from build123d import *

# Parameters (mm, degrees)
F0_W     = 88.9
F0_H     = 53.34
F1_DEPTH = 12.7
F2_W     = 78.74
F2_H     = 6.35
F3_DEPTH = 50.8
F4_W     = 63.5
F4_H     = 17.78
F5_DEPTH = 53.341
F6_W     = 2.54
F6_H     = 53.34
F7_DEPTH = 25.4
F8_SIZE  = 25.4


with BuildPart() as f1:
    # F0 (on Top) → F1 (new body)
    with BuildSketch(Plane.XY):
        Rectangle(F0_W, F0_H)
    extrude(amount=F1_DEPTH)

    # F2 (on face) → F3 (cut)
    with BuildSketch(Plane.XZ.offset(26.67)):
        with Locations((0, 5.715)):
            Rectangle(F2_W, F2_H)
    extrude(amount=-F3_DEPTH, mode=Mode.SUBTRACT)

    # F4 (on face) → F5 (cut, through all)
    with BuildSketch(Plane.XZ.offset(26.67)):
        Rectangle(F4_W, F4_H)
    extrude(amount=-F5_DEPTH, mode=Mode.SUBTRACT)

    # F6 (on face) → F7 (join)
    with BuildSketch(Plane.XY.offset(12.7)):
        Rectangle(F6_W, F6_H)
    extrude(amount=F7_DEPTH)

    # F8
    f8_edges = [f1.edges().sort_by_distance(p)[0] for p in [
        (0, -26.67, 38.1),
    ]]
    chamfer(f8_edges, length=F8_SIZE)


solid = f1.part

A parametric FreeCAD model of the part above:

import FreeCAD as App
import Part
import Sketcher

V = App.Vector
Q = App.Units.Quantity


def edges_at(feature, points):
    """Names of the edges that pass closest to the given points."""
    edges = feature.Shape.Edges
    near = lambda p: min(range(len(edges)), key=lambda i: edges[i].distToShape(Part.Vertex(*p))[0])
    return sorted({f"Edge{near(p) + 1}" for p in points})


def add_polygon(sketch, points):
    """Adds a closed chain of lines whose ends are joined by coincident constraints."""
    first, n = sketch.GeometryCount, len(points)
    for a, b in zip(points, points[1:] + points[:1]):
        sketch.addGeometry(Part.LineSegment(App.Vector(*a, 0), App.Vector(*b, 0)), False)
    for i in range(n):
        sketch.addConstraint(Sketcher.Constraint("Coincident", first + i, 2, first + (i + 1) % n, 1))

doc = App.newDocument("Part")
body = doc.addObject("PartDesign::Body", "Body")

# Sketch on XY plane
sketch1 = body.newObject("Sketcher::SketchObject", "Sketch")
sketch1.AttachmentSupport = (doc.getObject("XY_Plane"), [""])
sketch1.MapMode = "FlatFace"
add_polygon(sketch1, [(-44, 27), (-44, -27), (44, -27), (44, 27)])  # lines 0-3
sketch1.addConstraint(Sketcher.Constraint("Vertical", 0))
sketch1.addConstraint(Sketcher.Constraint("Horizontal", 1))
sketch1.addConstraint(Sketcher.Constraint("Vertical", 2))
sketch1.addConstraint(Sketcher.Constraint("Horizontal", 3))
sketch1.addConstraint(Sketcher.Constraint("Symmetric", 0, 2, 2, 2, -1, 1))
sketch1.addConstraint(Sketcher.Constraint("DistanceX", 1, 1, 1, 2, Q("3.5 in")))
sketch1.addConstraint(Sketcher.Constraint("DistanceY", 0, 2, 0, 1, Q("2.1 in")))
pad1 = body.newObject("PartDesign::Pad", "Pad")
pad1.Profile = sketch1
pad1.Length = Q("0.5 in")

# Sketch on XZ plane
sketch2 = body.newObject("Sketcher::SketchObject", "Sketch001")
sketch2.AttachmentSupport = (doc.getObject("XZ_Plane"), [""])
sketch2.MapMode = "FlatFace"
sketch2.AttachmentOffset = App.Placement(V(0, 0, 1.05 * 25.4), App.Rotation())
add_polygon(sketch2, [(-39, 9), (-39, 3), (39, 3), (39, 9)])  # lines 0-3
sketch2.addConstraint(Sketcher.Constraint("Vertical", 0))
sketch2.addConstraint(Sketcher.Constraint("Horizontal", 1))
sketch2.addConstraint(Sketcher.Constraint("Vertical", 2))
sketch2.addConstraint(Sketcher.Constraint("Horizontal", 3))
sketch2.addConstraint(Sketcher.Constraint("DistanceX", 1, 1, 1, 2, Q("3.1 in")))
sketch2.addConstraint(Sketcher.Constraint("DistanceY", 0, 2, 0, 1, Q("0.25 in")))
sketch2.addConstraint(Sketcher.Constraint("DistanceY", -1, 1, 0, 2, Q("0.1 in")))
sketch2.addConstraint(Sketcher.Constraint("DistanceX", 0, 2, -1, 1, Q("1.55 in")))
pocket1 = body.newObject("PartDesign::Pocket", "Pocket")
pocket1.Profile = sketch2
pocket1.Length = Q("2 in")

# Sketch on XZ plane
sketch3 = body.newObject("Sketcher::SketchObject", "Sketch002")
sketch3.AttachmentSupport = (doc.getObject("XZ_Plane"), [""])
sketch3.MapMode = "FlatFace"
sketch3.AttachmentOffset = App.Placement(V(0, 0, 1.05 * 25.4), App.Rotation())
add_polygon(sketch3, [(-32, 9), (-32, -9), (32, -9), (32, 9)])  # lines 0-3
sketch3.addConstraint(Sketcher.Constraint("Vertical", 0))
sketch3.addConstraint(Sketcher.Constraint("Horizontal", 1))
sketch3.addConstraint(Sketcher.Constraint("Vertical", 2))
sketch3.addConstraint(Sketcher.Constraint("Horizontal", 3))
sketch3.addConstraint(Sketcher.Constraint("Symmetric", 0, 2, 2, 2, -1, 1))
sketch3.addConstraint(Sketcher.Constraint("DistanceX", 1, 1, 1, 2, Q("2.5 in")))
sketch3.addConstraint(Sketcher.Constraint("DistanceY", 0, 2, 0, 1, Q("0.7 in")))
pocket2 = body.newObject("PartDesign::Pocket", "Pocket001")
pocket2.Profile = sketch3
pocket2.Type = "ThroughAll"

# Sketch on XY plane
sketch4 = body.newObject("Sketcher::SketchObject", "Sketch003")
sketch4.AttachmentSupport = (doc.getObject("XY_Plane"), [""])
sketch4.MapMode = "FlatFace"
sketch4.AttachmentOffset = App.Placement(V(0, 0, 0.5 * 25.4), App.Rotation())
add_polygon(sketch4, [(-1.3, 26.7), (-1.3, -26.7), (1.3, -26.7), (1.3, 26.7)])  # lines 0-3
sketch4.addConstraint(Sketcher.Constraint("Vertical", 0))
sketch4.addConstraint(Sketcher.Constraint("Horizontal", 1))
sketch4.addConstraint(Sketcher.Constraint("Vertical", 2))
sketch4.addConstraint(Sketcher.Constraint("Horizontal", 3))
sketch4.addConstraint(Sketcher.Constraint("Symmetric", 0, 2, 2, 2, -1, 1))
sketch4.addConstraint(Sketcher.Constraint("DistanceX", 1, 1, 1, 2, Q("0.1 in")))
sketch4.addConstraint(Sketcher.Constraint("DistanceY", 0, 2, 0, 1, Q("2.1 in")))
pad2 = body.newObject("PartDesign::Pad", "Pad001")
pad2.Profile = sketch4
pad2.Length = Q("1 in")
doc.recompute()

chamfer = body.newObject("PartDesign::Chamfer", "Chamfer")
chamfer.Base = (pad2, edges_at(pad2, [(0, -26.67, 38.1)]))
chamfer.Size = Q("1 in")

doc.recompute()
